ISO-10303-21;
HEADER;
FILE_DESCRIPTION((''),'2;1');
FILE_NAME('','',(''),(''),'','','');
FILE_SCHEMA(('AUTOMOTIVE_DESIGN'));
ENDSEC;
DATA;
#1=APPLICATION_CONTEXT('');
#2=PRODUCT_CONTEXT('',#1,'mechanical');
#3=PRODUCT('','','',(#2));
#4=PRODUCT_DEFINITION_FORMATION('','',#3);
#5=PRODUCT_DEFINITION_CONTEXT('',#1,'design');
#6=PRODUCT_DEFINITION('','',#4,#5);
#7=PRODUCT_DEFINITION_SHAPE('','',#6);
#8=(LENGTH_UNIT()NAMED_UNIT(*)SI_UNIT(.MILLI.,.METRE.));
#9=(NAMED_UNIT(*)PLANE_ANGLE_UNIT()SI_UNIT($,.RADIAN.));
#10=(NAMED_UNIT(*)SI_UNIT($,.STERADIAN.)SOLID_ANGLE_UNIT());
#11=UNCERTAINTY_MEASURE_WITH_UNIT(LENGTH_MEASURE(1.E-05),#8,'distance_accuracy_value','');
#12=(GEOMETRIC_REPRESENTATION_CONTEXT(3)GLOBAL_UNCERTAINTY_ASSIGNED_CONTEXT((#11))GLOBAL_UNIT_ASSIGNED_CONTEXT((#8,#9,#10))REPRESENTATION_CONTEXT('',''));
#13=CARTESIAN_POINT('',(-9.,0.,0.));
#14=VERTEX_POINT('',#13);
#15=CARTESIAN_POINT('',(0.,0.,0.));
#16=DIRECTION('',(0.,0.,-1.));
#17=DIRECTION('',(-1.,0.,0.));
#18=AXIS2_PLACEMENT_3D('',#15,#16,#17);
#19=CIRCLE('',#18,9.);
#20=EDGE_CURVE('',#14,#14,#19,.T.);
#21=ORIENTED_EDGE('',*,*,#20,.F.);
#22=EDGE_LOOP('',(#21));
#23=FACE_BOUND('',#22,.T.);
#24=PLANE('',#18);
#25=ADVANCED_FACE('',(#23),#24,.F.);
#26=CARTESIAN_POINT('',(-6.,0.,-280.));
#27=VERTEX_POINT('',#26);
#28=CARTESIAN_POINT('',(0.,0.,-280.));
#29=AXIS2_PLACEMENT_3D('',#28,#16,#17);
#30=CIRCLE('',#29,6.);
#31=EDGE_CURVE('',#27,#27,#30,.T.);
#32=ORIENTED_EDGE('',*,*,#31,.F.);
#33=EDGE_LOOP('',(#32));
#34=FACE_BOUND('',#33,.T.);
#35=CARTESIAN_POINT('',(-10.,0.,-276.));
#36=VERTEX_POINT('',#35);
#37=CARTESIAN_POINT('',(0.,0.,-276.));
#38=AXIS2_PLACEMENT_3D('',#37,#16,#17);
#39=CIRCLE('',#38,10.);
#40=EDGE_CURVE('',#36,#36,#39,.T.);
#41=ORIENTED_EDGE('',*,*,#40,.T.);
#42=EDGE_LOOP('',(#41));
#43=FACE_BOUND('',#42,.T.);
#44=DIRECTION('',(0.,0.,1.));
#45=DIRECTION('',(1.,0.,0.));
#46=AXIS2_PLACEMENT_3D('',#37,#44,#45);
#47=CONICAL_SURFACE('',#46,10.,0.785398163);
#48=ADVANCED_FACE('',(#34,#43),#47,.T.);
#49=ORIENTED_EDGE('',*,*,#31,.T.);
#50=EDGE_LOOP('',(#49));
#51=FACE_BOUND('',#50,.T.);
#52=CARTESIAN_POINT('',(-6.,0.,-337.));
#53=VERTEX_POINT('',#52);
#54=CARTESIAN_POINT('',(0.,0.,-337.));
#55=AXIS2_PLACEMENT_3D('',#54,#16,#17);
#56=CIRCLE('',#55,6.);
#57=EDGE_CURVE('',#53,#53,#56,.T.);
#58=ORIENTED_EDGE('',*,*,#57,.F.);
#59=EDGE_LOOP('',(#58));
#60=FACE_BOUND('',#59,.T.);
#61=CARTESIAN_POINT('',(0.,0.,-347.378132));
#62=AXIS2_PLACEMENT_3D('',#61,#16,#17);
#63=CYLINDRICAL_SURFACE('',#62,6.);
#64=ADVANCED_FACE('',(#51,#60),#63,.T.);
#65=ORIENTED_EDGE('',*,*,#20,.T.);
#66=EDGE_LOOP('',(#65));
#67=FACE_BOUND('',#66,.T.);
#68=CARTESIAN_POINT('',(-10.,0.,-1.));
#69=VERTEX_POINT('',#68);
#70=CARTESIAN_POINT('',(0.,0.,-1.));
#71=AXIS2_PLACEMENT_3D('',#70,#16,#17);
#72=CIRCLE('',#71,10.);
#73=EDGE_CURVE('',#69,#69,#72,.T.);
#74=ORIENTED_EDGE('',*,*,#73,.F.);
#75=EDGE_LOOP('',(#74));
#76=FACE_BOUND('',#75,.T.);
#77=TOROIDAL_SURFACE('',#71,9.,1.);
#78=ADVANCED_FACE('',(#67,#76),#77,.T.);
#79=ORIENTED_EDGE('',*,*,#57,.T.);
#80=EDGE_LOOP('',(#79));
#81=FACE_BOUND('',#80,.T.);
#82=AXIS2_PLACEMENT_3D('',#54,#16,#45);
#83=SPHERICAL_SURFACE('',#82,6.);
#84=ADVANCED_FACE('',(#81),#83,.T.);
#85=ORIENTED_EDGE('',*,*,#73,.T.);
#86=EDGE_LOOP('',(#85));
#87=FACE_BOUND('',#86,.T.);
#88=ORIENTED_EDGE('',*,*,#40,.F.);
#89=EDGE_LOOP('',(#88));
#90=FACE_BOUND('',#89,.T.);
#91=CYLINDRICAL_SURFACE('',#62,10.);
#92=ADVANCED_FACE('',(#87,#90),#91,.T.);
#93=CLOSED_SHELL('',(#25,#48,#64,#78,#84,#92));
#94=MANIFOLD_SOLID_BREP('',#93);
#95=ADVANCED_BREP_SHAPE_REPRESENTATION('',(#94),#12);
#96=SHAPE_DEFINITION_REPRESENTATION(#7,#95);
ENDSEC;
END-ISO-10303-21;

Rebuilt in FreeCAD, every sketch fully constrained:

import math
import FreeCAD as App
import Part
import Sketcher

V = App.Vector
Q = App.Units.Quantity

doc = App.newDocument("Part")
body = doc.addObject("PartDesign::Body", "Body")

sketch1 = body.newObject("Sketcher::SketchObject", "Sketch")
sketch1.AttachmentSupport = (doc.getObject("XZ_Plane"), [""])
sketch1.MapMode = "FlatFace"
sketch1.addGeometry(Part.LineSegment(V(0, 0, 0), V(9, 0, 0)), False)
sketch1.addGeometry(Part.ArcOfCircle(Part.Circle(V(9, -1, 0), V(0, 0, 1), 1), math.radians(0), math.radians(90)), False)
sketch1.addGeometry(Part.LineSegment(V(10, -1, 0), V(10, -276, 0)), False)
sketch1.addGeometry(Part.LineSegment(V(10, -276, 0), V(6, -280, 0)), False)
sketch1.addGeometry(Part.LineSegment(V(6, -280, 0), V(6, -337, 0)), False)
sketch1.addGeometry(Part.ArcOfCircle(Part.Circle(V(0, -337, 0), V(0, 0, 1), 6), math.radians(-90), math.radians(0)), False)
sketch1.addGeometry(Part.LineSegment(V(0, -343, 0), V(0, 0, 0)), False)
sketch1.addConstraint(Sketcher.Constraint("Tangent", 0, 2, 1, 2))
sketch1.addConstraint(Sketcher.Constraint("Tangent", 1, 1, 2, 1))
sketch1.addConstraint(Sketcher.Constraint("Coincident", 2, 2, 3, 1))
sketch1.addConstraint(Sketcher.Constraint("Coincident", 3, 2, 4, 1))
sketch1.addConstraint(Sketcher.Constraint("Tangent", 4, 2, 5, 2))
sketch1.addConstraint(Sketcher.Constraint("Coincident", 5, 1, 6, 1))
sketch1.addConstraint(Sketcher.Constraint("Coincident", 6, 2, 0, 1))
sketch1.addConstraint(Sketcher.Constraint("Horizontal", 0))
sketch1.addConstraint(Sketcher.Constraint("Vertical", 2))
sketch1.addConstraint(Sketcher.Constraint("Vertical", 4))
sketch1.addConstraint(Sketcher.Constraint("Vertical", 6))
sketch1.addConstraint(Sketcher.Constraint("Coincident", 6, 2, -1, 1))
sketch1.addConstraint(Sketcher.Constraint("PointOnObject", 5, 3, -2))
sketch1.addConstraint(Sketcher.Constraint("Radius", 1, Q("1 mm")))
sketch1.addConstraint(Sketcher.Constraint("Radius", 5, Q("6 mm")))
sketch1.addConstraint(Sketcher.Constraint("DistanceX", 0, 1, 0, 2, Q("9 mm")))
sketch1.addConstraint(Sketcher.Constraint("DistanceY", 2, 2, 2, 1, Q("275 mm")))
sketch1.addConstraint(Sketcher.Constraint("DistanceY", 4, 2, 4, 1, Q("57 mm")))
sketch1.addConstraint(Sketcher.Constraint("DistanceY", 6, 1, 6, 2, Q("343 mm")))
revolution = body.newObject("PartDesign::Revolution", "Revolution")
revolution.Profile = sketch1
revolution.ReferenceAxis = (sketch1, ["V_Axis"])
revolution.Angle = 360

doc.recompute()
